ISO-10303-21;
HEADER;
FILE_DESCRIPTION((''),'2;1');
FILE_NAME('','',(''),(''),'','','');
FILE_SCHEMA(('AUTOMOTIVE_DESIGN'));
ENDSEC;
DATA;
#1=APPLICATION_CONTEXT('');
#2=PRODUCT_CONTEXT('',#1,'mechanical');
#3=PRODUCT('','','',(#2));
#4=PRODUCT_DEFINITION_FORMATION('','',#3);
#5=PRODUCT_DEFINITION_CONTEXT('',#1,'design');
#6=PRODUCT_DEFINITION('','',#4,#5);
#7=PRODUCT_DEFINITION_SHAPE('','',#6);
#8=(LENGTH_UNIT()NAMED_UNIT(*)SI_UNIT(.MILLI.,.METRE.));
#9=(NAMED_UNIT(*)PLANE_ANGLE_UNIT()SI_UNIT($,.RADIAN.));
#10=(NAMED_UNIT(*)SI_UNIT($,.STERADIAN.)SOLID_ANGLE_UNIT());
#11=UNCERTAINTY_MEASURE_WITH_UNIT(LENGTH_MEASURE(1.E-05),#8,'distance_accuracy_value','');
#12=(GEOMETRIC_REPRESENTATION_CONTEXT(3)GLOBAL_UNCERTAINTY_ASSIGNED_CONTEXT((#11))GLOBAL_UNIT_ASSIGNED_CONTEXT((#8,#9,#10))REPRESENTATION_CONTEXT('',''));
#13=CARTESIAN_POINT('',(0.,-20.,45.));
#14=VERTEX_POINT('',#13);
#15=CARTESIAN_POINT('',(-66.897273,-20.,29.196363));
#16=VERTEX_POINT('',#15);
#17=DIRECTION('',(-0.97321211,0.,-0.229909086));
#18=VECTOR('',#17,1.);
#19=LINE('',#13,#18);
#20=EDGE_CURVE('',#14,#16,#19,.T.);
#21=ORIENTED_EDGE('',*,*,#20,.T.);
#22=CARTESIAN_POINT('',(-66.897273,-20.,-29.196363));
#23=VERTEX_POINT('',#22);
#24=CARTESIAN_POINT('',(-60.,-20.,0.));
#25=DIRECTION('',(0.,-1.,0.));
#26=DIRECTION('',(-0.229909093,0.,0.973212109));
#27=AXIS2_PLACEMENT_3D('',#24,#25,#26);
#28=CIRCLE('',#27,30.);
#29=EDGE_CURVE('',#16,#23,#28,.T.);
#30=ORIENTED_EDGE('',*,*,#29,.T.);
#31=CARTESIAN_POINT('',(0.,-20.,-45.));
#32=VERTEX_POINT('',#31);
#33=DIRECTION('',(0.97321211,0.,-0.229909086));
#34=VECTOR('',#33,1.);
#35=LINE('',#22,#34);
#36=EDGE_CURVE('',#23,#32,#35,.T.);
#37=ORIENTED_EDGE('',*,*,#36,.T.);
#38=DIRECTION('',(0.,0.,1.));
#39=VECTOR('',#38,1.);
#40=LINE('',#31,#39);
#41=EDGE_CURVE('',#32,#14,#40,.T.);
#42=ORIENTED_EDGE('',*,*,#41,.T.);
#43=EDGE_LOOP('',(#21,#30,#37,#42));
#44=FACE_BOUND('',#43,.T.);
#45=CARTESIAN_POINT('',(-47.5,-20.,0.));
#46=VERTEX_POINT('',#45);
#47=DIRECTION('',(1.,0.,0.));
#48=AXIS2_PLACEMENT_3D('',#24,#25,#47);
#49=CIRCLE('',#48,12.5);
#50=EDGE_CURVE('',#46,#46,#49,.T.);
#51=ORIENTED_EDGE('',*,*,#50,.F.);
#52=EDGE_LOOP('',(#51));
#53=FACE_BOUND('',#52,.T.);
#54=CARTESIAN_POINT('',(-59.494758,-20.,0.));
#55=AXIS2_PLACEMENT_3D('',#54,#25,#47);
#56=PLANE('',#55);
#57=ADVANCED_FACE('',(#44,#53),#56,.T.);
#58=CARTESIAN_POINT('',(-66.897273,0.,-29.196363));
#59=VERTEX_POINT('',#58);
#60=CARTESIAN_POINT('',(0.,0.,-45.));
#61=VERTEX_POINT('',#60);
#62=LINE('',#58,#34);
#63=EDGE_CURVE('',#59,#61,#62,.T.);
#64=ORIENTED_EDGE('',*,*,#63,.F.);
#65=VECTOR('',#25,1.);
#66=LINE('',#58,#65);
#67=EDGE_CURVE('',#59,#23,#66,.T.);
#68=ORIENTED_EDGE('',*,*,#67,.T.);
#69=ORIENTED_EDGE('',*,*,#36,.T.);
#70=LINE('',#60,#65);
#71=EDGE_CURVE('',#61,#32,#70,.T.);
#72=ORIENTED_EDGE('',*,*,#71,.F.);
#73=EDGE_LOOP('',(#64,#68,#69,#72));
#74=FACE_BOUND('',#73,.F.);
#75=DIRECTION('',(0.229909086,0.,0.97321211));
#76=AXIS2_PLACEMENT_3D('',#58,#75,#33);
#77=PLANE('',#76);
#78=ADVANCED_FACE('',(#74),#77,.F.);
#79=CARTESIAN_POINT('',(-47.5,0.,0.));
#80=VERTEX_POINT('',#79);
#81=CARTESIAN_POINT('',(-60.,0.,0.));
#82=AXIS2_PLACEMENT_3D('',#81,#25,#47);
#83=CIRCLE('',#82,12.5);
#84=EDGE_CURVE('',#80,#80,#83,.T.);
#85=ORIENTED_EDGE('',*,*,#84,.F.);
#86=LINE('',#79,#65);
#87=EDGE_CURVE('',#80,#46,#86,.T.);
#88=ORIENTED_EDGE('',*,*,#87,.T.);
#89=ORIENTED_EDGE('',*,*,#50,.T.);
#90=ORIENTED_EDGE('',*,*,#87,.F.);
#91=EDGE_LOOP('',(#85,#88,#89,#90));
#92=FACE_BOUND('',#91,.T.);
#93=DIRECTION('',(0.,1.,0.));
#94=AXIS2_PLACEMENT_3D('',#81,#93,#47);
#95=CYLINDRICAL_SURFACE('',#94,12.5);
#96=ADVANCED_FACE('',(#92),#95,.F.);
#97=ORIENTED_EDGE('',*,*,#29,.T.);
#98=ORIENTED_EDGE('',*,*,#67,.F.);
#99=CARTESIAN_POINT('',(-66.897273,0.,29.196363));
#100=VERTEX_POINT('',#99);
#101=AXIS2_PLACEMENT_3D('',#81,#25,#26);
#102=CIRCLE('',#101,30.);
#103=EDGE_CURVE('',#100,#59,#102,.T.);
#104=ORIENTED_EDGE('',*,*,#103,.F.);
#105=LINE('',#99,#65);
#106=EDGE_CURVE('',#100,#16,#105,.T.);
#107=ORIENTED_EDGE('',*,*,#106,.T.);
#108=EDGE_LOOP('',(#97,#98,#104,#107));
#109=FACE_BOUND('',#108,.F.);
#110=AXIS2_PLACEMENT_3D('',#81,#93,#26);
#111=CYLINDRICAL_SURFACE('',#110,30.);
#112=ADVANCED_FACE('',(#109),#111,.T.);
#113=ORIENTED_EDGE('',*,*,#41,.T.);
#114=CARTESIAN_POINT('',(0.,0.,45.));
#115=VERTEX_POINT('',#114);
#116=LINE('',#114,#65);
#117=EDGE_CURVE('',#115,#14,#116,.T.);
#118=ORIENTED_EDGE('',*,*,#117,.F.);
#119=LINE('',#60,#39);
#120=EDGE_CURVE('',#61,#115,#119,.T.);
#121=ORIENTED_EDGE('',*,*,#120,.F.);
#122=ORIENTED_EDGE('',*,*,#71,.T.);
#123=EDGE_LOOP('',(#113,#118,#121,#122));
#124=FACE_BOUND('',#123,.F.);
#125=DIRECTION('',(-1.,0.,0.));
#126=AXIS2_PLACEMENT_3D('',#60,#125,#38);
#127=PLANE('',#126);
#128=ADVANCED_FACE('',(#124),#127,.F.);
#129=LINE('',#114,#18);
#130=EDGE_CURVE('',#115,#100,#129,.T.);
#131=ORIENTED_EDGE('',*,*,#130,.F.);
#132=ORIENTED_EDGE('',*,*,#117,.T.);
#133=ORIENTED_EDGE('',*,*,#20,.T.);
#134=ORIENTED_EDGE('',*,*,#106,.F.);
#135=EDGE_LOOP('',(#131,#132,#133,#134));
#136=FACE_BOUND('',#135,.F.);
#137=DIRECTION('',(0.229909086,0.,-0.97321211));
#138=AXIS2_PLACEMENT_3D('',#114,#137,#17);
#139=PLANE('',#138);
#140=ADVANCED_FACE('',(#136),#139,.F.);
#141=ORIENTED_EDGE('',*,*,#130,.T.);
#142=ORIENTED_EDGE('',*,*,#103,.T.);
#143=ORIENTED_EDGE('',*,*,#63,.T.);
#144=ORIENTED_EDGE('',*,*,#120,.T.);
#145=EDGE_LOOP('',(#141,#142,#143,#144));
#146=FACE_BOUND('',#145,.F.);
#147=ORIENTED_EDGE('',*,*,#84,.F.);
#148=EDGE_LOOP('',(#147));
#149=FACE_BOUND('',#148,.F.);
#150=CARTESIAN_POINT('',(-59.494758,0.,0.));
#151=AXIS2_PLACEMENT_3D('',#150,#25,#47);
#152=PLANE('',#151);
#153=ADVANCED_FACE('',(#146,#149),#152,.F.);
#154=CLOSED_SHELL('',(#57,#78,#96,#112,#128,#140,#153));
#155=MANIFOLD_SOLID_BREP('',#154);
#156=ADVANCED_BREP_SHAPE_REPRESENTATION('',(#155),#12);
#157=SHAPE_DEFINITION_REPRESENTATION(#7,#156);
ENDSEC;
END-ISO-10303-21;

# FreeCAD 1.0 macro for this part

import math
import FreeCAD as App
import Part
import Sketcher

V = App.Vector
Q = App.Units.Quantity

doc = App.newDocument("Part")
body = doc.addObject("PartDesign::Body", "Body")

# Sketch on XZ plane
sketch1 = body.newObject("Sketcher::SketchObject", "Sketch")
sketch1.AttachmentSupport = (doc.getObject("XZ_Plane"), [""])
sketch1.MapMode = "FlatFace"
sketch1.addGeometry([
    Part.ArcOfCircle(Part.Circle(V(-60, 0, 0), V(0, 0, 1), 30), math.radians(103.29172), math.radians(256.70828)),  # 0
    Part.LineSegment(V(-66.897273, -29.196363, 0), V(0, -45, 0)),  # 1
    Part.LineSegment(V(0, -45, 0), V(0, 45, 0)),  # 2
    Part.LineSegment(V(0, 45, 0), V(-66.897273, 29.196363, 0)),  # 3
    Part.Circle(V(-60, 0, 0), V(0, 0, 1), 12.5),  # 4
], False)
sketch1.addConstraint([
    Sketcher.Constraint("Tangent", 0, 2, 1, 1),
    Sketcher.Constraint("Coincident", 1, 2, 2, 1),
    Sketcher.Constraint("Coincident", 2, 2, 3, 1),
    Sketcher.Constraint("Tangent", 3, 2, 0, 1),
    Sketcher.Constraint("Vertical", 2),
    Sketcher.Constraint("Coincident", 4, 3, 0, 3),
    Sketcher.Constraint("Symmetric", 1, 2, 2, 2, -1, 1),
    Sketcher.Constraint("PointOnObject", 0, 3, -1),
    Sketcher.Constraint("Diameter", 4, Q("25 mm")),
    Sketcher.Constraint("Radius", 0, Q("30 mm")),
    Sketcher.Constraint("DistanceY", 2, 1, 2, 2, Q("90 mm")),
    Sketcher.Constraint("DistanceX", 0, 3, -1, 1, Q("60 mm")),
])
pad1 = body.newObject("PartDesign::Pad", "Pad")
pad1.Profile = sketch1
pad1.Length = 20

doc.recompute()
